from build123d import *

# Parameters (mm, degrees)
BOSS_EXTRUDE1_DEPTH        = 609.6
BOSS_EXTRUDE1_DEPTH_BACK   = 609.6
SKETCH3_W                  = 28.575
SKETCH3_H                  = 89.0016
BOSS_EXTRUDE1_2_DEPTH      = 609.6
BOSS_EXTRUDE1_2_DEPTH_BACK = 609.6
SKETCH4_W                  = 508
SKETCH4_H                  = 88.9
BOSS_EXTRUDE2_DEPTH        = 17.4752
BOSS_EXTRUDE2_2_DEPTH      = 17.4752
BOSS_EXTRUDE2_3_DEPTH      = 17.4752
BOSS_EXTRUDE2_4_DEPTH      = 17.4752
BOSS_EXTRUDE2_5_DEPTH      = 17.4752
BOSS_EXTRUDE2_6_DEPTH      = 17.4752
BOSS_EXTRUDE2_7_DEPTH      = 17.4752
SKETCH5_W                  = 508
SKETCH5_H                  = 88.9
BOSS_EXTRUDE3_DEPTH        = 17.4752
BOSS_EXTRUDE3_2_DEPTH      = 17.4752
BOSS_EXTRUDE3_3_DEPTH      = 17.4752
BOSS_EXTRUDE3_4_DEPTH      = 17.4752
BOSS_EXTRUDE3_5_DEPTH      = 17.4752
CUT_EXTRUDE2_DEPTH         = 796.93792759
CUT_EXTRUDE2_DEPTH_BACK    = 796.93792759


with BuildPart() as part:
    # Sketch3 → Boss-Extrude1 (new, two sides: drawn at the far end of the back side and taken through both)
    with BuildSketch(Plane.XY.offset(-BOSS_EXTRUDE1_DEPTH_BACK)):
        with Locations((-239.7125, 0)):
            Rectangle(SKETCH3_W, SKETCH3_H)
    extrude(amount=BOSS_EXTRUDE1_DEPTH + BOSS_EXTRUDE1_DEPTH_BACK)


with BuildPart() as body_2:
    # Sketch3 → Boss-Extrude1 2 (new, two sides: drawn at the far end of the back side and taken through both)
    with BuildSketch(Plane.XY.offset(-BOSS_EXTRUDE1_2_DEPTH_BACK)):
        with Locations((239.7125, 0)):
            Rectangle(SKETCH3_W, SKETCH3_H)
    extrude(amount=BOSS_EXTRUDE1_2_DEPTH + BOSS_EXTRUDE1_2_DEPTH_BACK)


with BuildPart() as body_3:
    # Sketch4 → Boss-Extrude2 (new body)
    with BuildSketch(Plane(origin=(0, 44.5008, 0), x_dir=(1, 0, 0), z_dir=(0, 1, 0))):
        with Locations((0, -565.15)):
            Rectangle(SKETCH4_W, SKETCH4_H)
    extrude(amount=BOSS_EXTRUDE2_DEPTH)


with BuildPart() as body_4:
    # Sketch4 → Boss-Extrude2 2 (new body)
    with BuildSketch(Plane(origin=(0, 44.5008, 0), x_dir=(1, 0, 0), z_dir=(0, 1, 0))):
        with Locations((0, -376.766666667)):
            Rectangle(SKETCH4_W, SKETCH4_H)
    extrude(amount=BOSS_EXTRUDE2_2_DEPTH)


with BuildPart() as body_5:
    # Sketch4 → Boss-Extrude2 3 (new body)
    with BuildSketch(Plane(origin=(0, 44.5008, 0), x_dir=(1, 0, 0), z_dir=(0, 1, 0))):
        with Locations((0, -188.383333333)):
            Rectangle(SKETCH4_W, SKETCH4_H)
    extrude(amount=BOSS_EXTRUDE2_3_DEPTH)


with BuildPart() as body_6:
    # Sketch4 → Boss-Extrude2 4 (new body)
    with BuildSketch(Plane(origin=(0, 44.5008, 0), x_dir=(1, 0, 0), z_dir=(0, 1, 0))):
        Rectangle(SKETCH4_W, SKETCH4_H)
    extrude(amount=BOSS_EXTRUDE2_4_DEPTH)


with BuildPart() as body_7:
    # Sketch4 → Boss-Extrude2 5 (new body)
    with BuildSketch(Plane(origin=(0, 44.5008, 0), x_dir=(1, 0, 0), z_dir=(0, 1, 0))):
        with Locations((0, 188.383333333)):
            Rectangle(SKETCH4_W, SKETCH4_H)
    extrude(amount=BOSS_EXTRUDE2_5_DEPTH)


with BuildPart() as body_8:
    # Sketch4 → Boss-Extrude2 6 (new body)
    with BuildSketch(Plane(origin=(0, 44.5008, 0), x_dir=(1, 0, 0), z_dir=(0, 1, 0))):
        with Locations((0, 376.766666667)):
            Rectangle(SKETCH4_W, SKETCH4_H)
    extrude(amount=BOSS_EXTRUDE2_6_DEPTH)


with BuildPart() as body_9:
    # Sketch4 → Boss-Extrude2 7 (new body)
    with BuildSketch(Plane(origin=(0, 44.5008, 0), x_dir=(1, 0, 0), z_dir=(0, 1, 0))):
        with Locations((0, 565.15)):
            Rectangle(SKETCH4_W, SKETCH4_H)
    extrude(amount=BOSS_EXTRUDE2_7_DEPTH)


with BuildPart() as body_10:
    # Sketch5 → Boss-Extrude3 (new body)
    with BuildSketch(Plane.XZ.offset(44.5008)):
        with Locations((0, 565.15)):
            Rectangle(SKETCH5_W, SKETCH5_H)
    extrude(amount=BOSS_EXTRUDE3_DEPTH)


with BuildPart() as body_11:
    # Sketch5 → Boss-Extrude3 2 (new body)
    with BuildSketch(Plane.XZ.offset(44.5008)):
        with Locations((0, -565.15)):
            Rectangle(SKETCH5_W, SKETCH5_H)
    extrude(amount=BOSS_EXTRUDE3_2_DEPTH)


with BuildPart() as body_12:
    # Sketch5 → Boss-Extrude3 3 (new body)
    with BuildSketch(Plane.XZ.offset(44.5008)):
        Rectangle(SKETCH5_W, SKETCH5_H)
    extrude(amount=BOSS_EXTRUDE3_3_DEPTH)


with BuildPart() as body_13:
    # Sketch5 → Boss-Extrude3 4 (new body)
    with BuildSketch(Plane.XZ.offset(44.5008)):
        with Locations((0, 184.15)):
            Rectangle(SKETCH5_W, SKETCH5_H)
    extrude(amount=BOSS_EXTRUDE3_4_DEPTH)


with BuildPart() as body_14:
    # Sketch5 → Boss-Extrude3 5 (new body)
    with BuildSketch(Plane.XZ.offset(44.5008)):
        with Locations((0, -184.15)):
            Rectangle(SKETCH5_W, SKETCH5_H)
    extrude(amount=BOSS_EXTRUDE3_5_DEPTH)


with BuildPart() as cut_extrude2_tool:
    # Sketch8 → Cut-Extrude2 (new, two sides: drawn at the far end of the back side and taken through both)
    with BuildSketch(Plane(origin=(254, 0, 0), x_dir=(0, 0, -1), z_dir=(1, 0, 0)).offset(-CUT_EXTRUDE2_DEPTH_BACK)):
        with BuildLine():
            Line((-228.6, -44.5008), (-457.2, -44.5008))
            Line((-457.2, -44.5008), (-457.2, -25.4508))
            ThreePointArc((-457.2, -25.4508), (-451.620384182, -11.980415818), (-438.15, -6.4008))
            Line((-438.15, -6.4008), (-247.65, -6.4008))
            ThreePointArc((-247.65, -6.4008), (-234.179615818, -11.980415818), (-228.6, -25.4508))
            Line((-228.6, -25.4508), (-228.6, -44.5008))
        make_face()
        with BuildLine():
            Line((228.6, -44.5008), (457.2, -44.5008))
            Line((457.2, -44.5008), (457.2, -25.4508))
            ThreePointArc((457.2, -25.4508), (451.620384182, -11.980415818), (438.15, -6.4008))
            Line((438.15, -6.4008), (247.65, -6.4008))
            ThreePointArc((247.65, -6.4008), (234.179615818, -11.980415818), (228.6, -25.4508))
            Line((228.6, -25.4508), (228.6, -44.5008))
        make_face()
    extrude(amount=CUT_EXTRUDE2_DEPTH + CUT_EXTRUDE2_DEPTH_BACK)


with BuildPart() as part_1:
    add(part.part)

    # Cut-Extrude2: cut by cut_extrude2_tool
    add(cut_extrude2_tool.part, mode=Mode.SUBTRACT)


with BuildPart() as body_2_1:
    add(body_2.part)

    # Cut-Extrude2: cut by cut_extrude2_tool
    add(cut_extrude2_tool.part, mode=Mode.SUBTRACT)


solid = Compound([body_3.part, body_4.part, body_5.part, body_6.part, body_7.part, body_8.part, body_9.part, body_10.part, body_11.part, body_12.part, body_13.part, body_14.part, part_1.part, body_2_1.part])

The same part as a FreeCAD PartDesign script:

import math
import FreeCAD as App
import Part
import Sketcher
from FreeCAD import Vector
Q = App.Units.Quantity


def add_polygon(sketch, points):
    """Adds a closed chain of lines whose ends are joined by coincident constraints."""
    first, n = sketch.GeometryCount, len(points)
    for a, b in zip(points, points[1:] + points[:1]):
        sketch.addGeometry(Part.LineSegment(App.Vector(*a, 0), App.Vector(*b, 0)), False)
    for i in range(n):
        sketch.addConstraint(Sketcher.Constraint("Coincident", first + i, 2, first + (i + 1) % n, 1))

doc = App.newDocument("Part")
body = doc.addObject("PartDesign::Body", "Body")

# Sketch on XY plane
sketch1 = body.newObject("Sketcher::SketchObject", "Sketch")
sketch1.AttachmentSupport = (doc.getObject("XY_Plane"), [""])
sketch1.MapMode = "FlatFace"
add_polygon(sketch1, [(-254, 45), (-254, -45), (-225, -45), (-225, 45)])  # lines 0-3
sketch1.addConstraint([
    Sketcher.Constraint("Vertical", 0),
    Sketcher.Constraint("Horizontal", 1),
    Sketcher.Constraint("Vertical", 2),
    Sketcher.Constraint("Horizontal", 3),
    Sketcher.Constraint("DistanceX", 0, 2, -1, 1, Q("10 in")),
    Sketcher.Constraint("DistanceX", 1, 1, 1, 2, Q("1.125 in")),
    Sketcher.Constraint("DistanceY", 0, 2, 0, 1, Q("3.504 in")),
    Sketcher.Constraint("DistanceY", 0, 2, -1, 1, Q("1.752 in")),
])
pad1 = body.newObject("PartDesign::Pad", "Pad")
pad1.Profile = sketch1
pad1.Type = "TwoLengths"
pad1.Length = Q("24 in")
pad1.Length2 = Q("24 in")
body2 = doc.addObject("PartDesign::Body", "Body001")

# Sketch on XY plane
sketch2 = body2.newObject("Sketcher::SketchObject", "Sketch001")
sketch2.AttachmentSupport = (doc.getObject("XY_Plane001"), [""])
sketch2.MapMode = "FlatFace"
add_polygon(sketch2, [(225, 45), (225, -45), (254, -45), (254, 45)])  # lines 0-3
sketch2.addConstraint([
    Sketcher.Constraint("Vertical", 0),
    Sketcher.Constraint("Horizontal", 1),
    Sketcher.Constraint("Vertical", 2),
    Sketcher.Constraint("Horizontal", 3),
    Sketcher.Constraint("DistanceX", -1, 1, 1, 2, Q("10 in")),
    Sketcher.Constraint("DistanceX", 1, 1, 1, 2, Q("1.125 in")),
    Sketcher.Constraint("DistanceY", 0, 2, 0, 1, Q("3.504 in")),
    Sketcher.Constraint("DistanceY", 0, 2, -1, 1, Q("1.752 in")),
])
pad2 = body2.newObject("PartDesign::Pad", "Pad001")
pad2.Profile = sketch2
pad2.Type = "TwoLengths"
pad2.Length = Q("24 in")
pad2.Length2 = Q("24 in")
body3 = doc.addObject("PartDesign::Body", "Body002")

# Sketch on XZ plane
sketch3 = body3.newObject("Sketcher::SketchObject", "Sketch002")
sketch3.AttachmentSupport = (doc.getObject("XZ_Plane002"), [""])
sketch3.MapMode = "FlatFace"
sketch3.AttachmentOffset = App.Placement(Vector(0, 0, -1.752 * 25.4), App.Rotation())
add_polygon(sketch3, [(-254, 521), (-254, 610), (254, 610), (254, 521)])  # lines 0-3
sketch3.addConstraint([
    Sketcher.Constraint("Vertical", 0),
    Sketcher.Constraint("Horizontal", 1),
    Sketcher.Constraint("Vertical", 2),
    Sketcher.Constraint("Horizontal", 3),
    Sketcher.Constraint("DistanceX", 1, 1, 1, 2, Q("20 in")),
    Sketcher.Constraint("DistanceY", 0, 1, 0, 2, Q("3.5 in")),
    Sketcher.Constraint("DistanceX", 0, 2, -1, 1, Q("10 in")),
    Sketcher.Constraint("DistanceY", -1, 1, 0, 2, Q("24 in")),
])
pad3 = body3.newObject("PartDesign::Pad", "Pad002")
pad3.Profile = sketch3
pad3.Length = Q("0.688 in")
pad3.Reversed = True
body4 = doc.addObject("PartDesign::Body", "Body003")

# Sketch on XZ plane
sketch4 = body4.newObject("Sketcher::SketchObject", "Sketch003")
sketch4.AttachmentSupport = (doc.getObject("XZ_Plane003"), [""])
sketch4.MapMode = "FlatFace"
sketch4.AttachmentOffset = App.Placement(Vector(0, 0, -1.752 * 25.4), App.Rotation())
add_polygon(sketch4, [(-254, 332), (-254, 421), (254, 421), (254, 332)])  # lines 0-3
sketch4.addConstraint([
    Sketcher.Constraint("Vertical", 0),
    Sketcher.Constraint("Horizontal", 1),
    Sketcher.Constraint("Vertical", 2),
    Sketcher.Constraint("Horizontal", 3),
    Sketcher.Constraint("DistanceX", 1, 1, 1, 2, Q("20 in")),
    Sketcher.Constraint("DistanceY", 0, 1, 0, 2, Q("3.5 in")),
    Sketcher.Constraint("DistanceX", 0, 2, -1, 1, Q("10 in")),
    Sketcher.Constraint("DistanceY", -1, 1, 0, 2, 421.216667),
])
pad4 = body4.newObject("PartDesign::Pad", "Pad003")
pad4.Profile = sketch4
pad4.Length = Q("0.688 in")
pad4.Reversed = True
body5 = doc.addObject("PartDesign::Body", "Body004")

# Sketch on XZ plane
sketch5 = body5.newObject("Sketcher::SketchObject", "Sketch004")
sketch5.AttachmentSupport = (doc.getObject("XZ_Plane004"), [""])
sketch5.MapMode = "FlatFace"
sketch5.AttachmentOffset = App.Placement(Vector(0, 0, -1.752 * 25.4), App.Rotation())
add_polygon(sketch5, [(-254, 144), (-254, 233), (254, 233), (254, 144)])  # lines 0-3
sketch5.addConstraint([
    Sketcher.Constraint("Vertical", 0),
    Sketcher.Constraint("Horizontal", 1),
    Sketcher.Constraint("Vertical", 2),
    Sketcher.Constraint("Horizontal", 3),
    Sketcher.Constraint("DistanceX", 1, 1, 1, 2, Q("20 in")),
    Sketcher.Constraint("DistanceY", 0, 1, 0, 2, Q("3.5 in")),
    Sketcher.Constraint("DistanceX", 0, 2, -1, 1, Q("10 in")),
    Sketcher.Constraint("DistanceY", -1, 1, 0, 2, 232.833333),
])
pad5 = body5.newObject("PartDesign::Pad", "Pad004")
pad5.Profile = sketch5
pad5.Length = Q("0.688 in")
pad5.Reversed = True
body6 = doc.addObject("PartDesign::Body", "Body005")

# Sketch on XZ plane
sketch6 = body6.newObject("Sketcher::SketchObject", "Sketch005")
sketch6.AttachmentSupport = (doc.getObject("XZ_Plane005"), [""])
sketch6.MapMode = "FlatFace"
sketch6.AttachmentOffset = App.Placement(Vector(0, 0, -1.752 * 25.4), App.Rotation())
add_polygon(sketch6, [(-254, -44), (-254, 44), (254, 44), (254, -44)])  # lines 0-3
sketch6.addConstraint([
    Sketcher.Constraint("Vertical", 0),
    Sketcher.Constraint("Horizontal", 1),
    Sketcher.Constraint("Vertical", 2),
    Sketcher.Constraint("Horizontal", 3),
    Sketcher.Constraint("Symmetric", 0, 2, 2, 2, -1, 1),
    Sketcher.Constraint("DistanceX", 1, 1, 1, 2, Q("20 in")),
    Sketcher.Constraint("DistanceY", 0, 1, 0, 2, Q("3.5 in")),
])
pad6 = body6.newObject("PartDesign::Pad", "Pad005")
pad6.Profile = sketch6
pad6.Length = Q("0.688 in")
pad6.Reversed = True
body7 = doc.addObject("PartDesign::Body", "Body006")

# Sketch on XZ plane
sketch7 = body7.newObject("Sketcher::SketchObject", "Sketch006")
sketch7.AttachmentSupport = (doc.getObject("XZ_Plane006"), [""])
sketch7.MapMode = "FlatFace"
sketch7.AttachmentOffset = App.Placement(Vector(0, 0, -1.752 * 25.4), App.Rotation())
add_polygon(sketch7, [(-254, -233), (-254, -144), (254, -144), (254, -233)])  # lines 0-3
sketch7.addConstraint([
    Sketcher.Constraint("Vertical", 0),
    Sketcher.Constraint("Horizontal", 1),
    Sketcher.Constraint("Vertical", 2),
    Sketcher.Constraint("Horizontal", 3),
    Sketcher.Constraint("DistanceX", 1, 1, 1, 2, Q("20 in")),
    Sketcher.Constraint("DistanceY", 0, 1, 0, 2, Q("3.5 in")),
    Sketcher.Constraint("DistanceX", 0, 2, -1, 1, Q("10 in")),
    Sketcher.Constraint("DistanceY", 0, 2, -1, 1, 143.933333),
])
pad7 = body7.newObject("PartDesign::Pad", "Pad006")
pad7.Profile = sketch7
pad7.Length = Q("0.688 in")
pad7.Reversed = True
body8 = doc.addObject("PartDesign::Body", "Body007")

# Sketch on XZ plane
sketch8 = body8.newObject("Sketcher::SketchObject", "Sketch007")
sketch8.AttachmentSupport = (doc.getObject("XZ_Plane007"), [""])
sketch8.MapMode = "FlatFace"
sketch8.AttachmentOffset = App.Placement(Vector(0, 0, -1.752 * 25.4), App.Rotation())
add_polygon(sketch8, [(-254, -421), (-254, -332), (254, -332), (254, -421)])  # lines 0-3
sketch8.addConstraint([
    Sketcher.Constraint("Vertical", 0),
    Sketcher.Constraint("Horizontal", 1),
    Sketcher.Constraint("Vertical", 2),
    Sketcher.Constraint("Horizontal", 3),
    Sketcher.Constraint("DistanceX", 1, 1, 1, 2, Q("20 in")),
    Sketcher.Constraint("DistanceY", 0, 1, 0, 2, Q("3.5 in")),
    Sketcher.Constraint("DistanceX", 0, 2, -1, 1, Q("10 in")),
    Sketcher.Constraint("DistanceY", 0, 2, -1, 1, 332.316667),
])
pad8 = body8.newObject("PartDesign::Pad", "Pad007")
pad8.Profile = sketch8
pad8.Length = Q("0.688 in")
pad8.Reversed = True
body9 = doc.addObject("PartDesign::Body", "Body008")

# Sketch on XZ plane
sketch9 = body9.newObject("Sketcher::SketchObject", "Sketch008")
sketch9.AttachmentSupport = (doc.getObject("XZ_Plane008"), [""])
sketch9.MapMode = "FlatFace"
sketch9.AttachmentOffset = App.Placement(Vector(0, 0, -1.752 * 25.4), App.Rotation())
add_polygon(sketch9, [(-254, -610), (-254, -521), (254, -521), (254, -610)])  # lines 0-3
sketch9.addConstraint([
    Sketcher.Constraint("Vertical", 0),
    Sketcher.Constraint("Horizontal", 1),
    Sketcher.Constraint("Vertical", 2),
    Sketcher.Constraint("Horizontal", 3),
    Sketcher.Constraint("DistanceX", 1, 1, 1, 2, Q("20 in")),
    Sketcher.Constraint("DistanceY", 0, 1, 0, 2, Q("3.5 in")),
    Sketcher.Constraint("DistanceX", 0, 2, -1, 1, Q("10 in")),
    Sketcher.Constraint("DistanceY", 2, 2, -1, 1, Q("24 in")),
])
pad9 = body9.newObject("PartDesign::Pad", "Pad008")
pad9.Profile = sketch9
pad9.Length = Q("0.688 in")
pad9.Reversed = True
body10 = doc.addObject("PartDesign::Body", "Body009")

# Sketch on XZ plane
sketch10 = body10.newObject("Sketcher::SketchObject", "Sketch009")
sketch10.AttachmentSupport = (doc.getObject("XZ_Plane009"), [""])
sketch10.MapMode = "FlatFace"
sketch10.AttachmentOffset = App.Placement(Vector(0, 0, 1.752 * 25.4), App.Rotation())
add_polygon(sketch10, [(-254, 610), (-254, 521), (254, 521), (254, 610)])  # lines 0-3
sketch10.addConstraint([
    Sketcher.Constraint("Vertical", 0),
    Sketcher.Constraint("Horizontal", 1),
    Sketcher.Constraint("Vertical", 2),
    Sketcher.Constraint("Horizontal", 3),
    Sketcher.Constraint("DistanceX", 1, 1, 1, 2, Q("20 in")),
    Sketcher.Constraint("DistanceY", 0, 2, 0, 1, Q("3.5 in")),
    Sketcher.Constraint("DistanceX", 0, 2, -1, 1, Q("10 in")),
    Sketcher.Constraint("DistanceY", -1, 1, 2, 2, Q("24 in")),
])
pad10 = body10.newObject("PartDesign::Pad", "Pad009")
pad10.Profile = sketch10
pad10.Length = Q("0.688 in")
body11 = doc.addObject("PartDesign::Body", "Body010")

# Sketch on XZ plane
sketch11 = body11.newObject("Sketcher::SketchObject", "Sketch010")
sketch11.AttachmentSupport = (doc.getObject("XZ_Plane010"), [""])
sketch11.MapMode = "FlatFace"
sketch11.AttachmentOffset = App.Placement(Vector(0, 0, 1.752 * 25.4), App.Rotation())
add_polygon(sketch11, [(-254, -521), (-254, -610), (254, -610), (254, -521)])  # lines 0-3
sketch11.addConstraint([
    Sketcher.Constraint("Vertical", 0),
    Sketcher.Constraint("Horizontal", 1),
    Sketcher.Constraint("Vertical", 2),
    Sketcher.Constraint("Horizontal", 3),
    Sketcher.Constraint("DistanceX", 1, 1, 1, 2, Q("20 in")),
    Sketcher.Constraint("DistanceY", 0, 2, 0, 1, Q("3.5 in")),
    Sketcher.Constraint("DistanceX", 0, 2, -1, 1, Q("10 in")),
    Sketcher.Constraint("DistanceY", 0, 2, -1, 1, Q("24 in")),
])
pad11 = body11.newObject("PartDesign::Pad", "Pad010")
pad11.Profile = sketch11
pad11.Length = Q("0.688 in")
body12 = doc.addObject("PartDesign::Body", "Body011")

# Sketch on XZ plane
sketch12 = body12.newObject("Sketcher::SketchObject", "Sketch011")
sketch12.AttachmentSupport = (doc.getObject("XZ_Plane011"), [""])
sketch12.MapMode = "FlatFace"
sketch12.AttachmentOffset = App.Placement(Vector(0, 0, 1.752 * 25.4), App.Rotation())
add_polygon(sketch12, [(-254, 44), (-254, -44), (254, -44), (254, 44)])  # lines 0-3
sketch12.addConstraint([
    Sketcher.Constraint("Vertical", 0),
    Sketcher.Constraint("Horizontal", 1),
    Sketcher.Constraint("Vertical", 2),
    Sketcher.Constraint("Horizontal", 3),
    Sketcher.Constraint("Symmetric", 0, 2, 2, 2, -1, 1),
    Sketcher.Constraint("DistanceX", 1, 1, 1, 2, Q("20 in")),
    Sketcher.Constraint("DistanceY", 0, 2, 0, 1, Q("3.5 in")),
])
pad12 = body12.newObject("PartDesign::Pad", "Pad011")
pad12.Profile = sketch12
pad12.Length = Q("0.688 in")
body13 = doc.addObject("PartDesign::Body", "Body012")

# Sketch on XZ plane
sketch13 = body13.newObject("Sketcher::SketchObject", "Sketch012")
sketch13.AttachmentSupport = (doc.getObject("XZ_Plane012"), [""])
sketch13.MapMode = "FlatFace"
sketch13.AttachmentOffset = App.Placement(Vector(0, 0, 1.752 * 25.4), App.Rotation())
add_polygon(sketch13, [(-254, 229), (-254, 140), (254, 140), (254, 229)])  # lines 0-3
sketch13.addConstraint([
    Sketcher.Constraint("Vertical", 0),
    Sketcher.Constraint("Horizontal", 1),
    Sketcher.Constraint("Vertical", 2),
    Sketcher.Constraint("Horizontal", 3),
    Sketcher.Constraint("DistanceX", 1, 1, 1, 2, Q("20 in")),
    Sketcher.Constraint("DistanceY", 0, 2, 0, 1, Q("3.5 in")),
    Sketcher.Constraint("DistanceX", 0, 2, -1, 1, Q("10 in")),
    Sketcher.Constraint("DistanceY", -1, 1, 2, 2, Q("9 in")),
])
pad13 = body13.newObject("PartDesign::Pad", "Pad012")
pad13.Profile = sketch13
pad13.Length = Q("0.688 in")
body14 = doc.addObject("PartDesign::Body", "Body013")

# Sketch on XZ plane
sketch14 = body14.newObject("Sketcher::SketchObject", "Sketch013")
sketch14.AttachmentSupport = (doc.getObject("XZ_Plane013"), [""])
sketch14.MapMode = "FlatFace"
sketch14.AttachmentOffset = App.Placement(Vector(0, 0, 1.752 * 25.4), App.Rotation())
add_polygon(sketch14, [(-254, -140), (-254, -229), (254, -229), (254, -140)])  # lines 0-3
sketch14.addConstraint([
    Sketcher.Constraint("Vertical", 0),
    Sketcher.Constraint("Horizontal", 1),
    Sketcher.Constraint("Vertical", 2),
    Sketcher.Constraint("Horizontal", 3),
    Sketcher.Constraint("DistanceX", 1, 1, 1, 2, Q("20 in")),
    Sketcher.Constraint("DistanceY", 0, 2, 0, 1, Q("3.5 in")),
    Sketcher.Constraint("DistanceX", 0, 2, -1, 1, Q("10 in")),
    Sketcher.Constraint("DistanceY", 0, 2, -1, 1, Q("9 in")),
])
pad14 = body14.newObject("PartDesign::Pad", "Pad013")
pad14.Profile = sketch14
pad14.Length = Q("0.688 in")
body15 = doc.addObject("PartDesign::Body", "Body014")
body15.AllowCompound = True

# Sketch on YZ plane
sketch15 = body15.newObject("Sketcher::SketchObject", "Sketch014")
sketch15.AttachmentSupport = (doc.getObject("YZ_Plane014"), [""])
sketch15.MapMode = "FlatFace"
sketch15.AttachmentOffset = App.Placement(Vector(0, 0, 10 * 25.4), App.Rotation())
sketch15.addGeometry([
    Part.LineSegment(Vector(-45, 457, 0), Vector(-45, 229, 0)),  # 0
    Part.LineSegment(Vector(-45, 229, 0), Vector(-25, 229, 0)),  # 1
    Part.ArcOfCircle(Part.Circle(Vector(-25, 248, 0), Vector(0, 0, 1), 19), math.radians(-90), math.radians(0)),  # 2
    Part.LineSegment(Vector(-6, 248, 0), Vector(-6, 438, 0)),  # 3
    Part.ArcOfCircle(Part.Circle(Vector(-25, 438, 0), Vector(0, 0, 1), 19), math.radians(0), math.radians(90)),  # 4
    Part.LineSegment(Vector(-25, 457, 0), Vector(-45, 457, 0)),  # 5
    Part.LineSegment(Vector(-45, -229, 0), Vector(-45, -457, 0)),  # 6
    Part.LineSegment(Vector(-45, -457, 0), Vector(-25, -457, 0)),  # 7
    Part.ArcOfCircle(Part.Circle(Vector(-25, -438, 0), Vector(0, 0, 1), 19), math.radians(-90), math.radians(0)),  # 8
    Part.LineSegment(Vector(-6, -438, 0), Vector(-6, -248, 0)),  # 9
    Part.ArcOfCircle(Part.Circle(Vector(-25, -248, 0), Vector(0, 0, 1), 19), math.radians(0), math.radians(90)),  # 10
    Part.LineSegment(Vector(-25, -229, 0), Vector(-45, -229, 0)),  # 11
], False)
sketch15.addConstraint([
    Sketcher.Constraint("Coincident", 0, 2, 1, 1),
    Sketcher.Constraint("Tangent", 1, 2, 2, 1),
    Sketcher.Constraint("Tangent", 2, 2, 3, 1),
    Sketcher.Constraint("Tangent", 3, 2, 4, 1),
    Sketcher.Constraint("Tangent", 4, 2, 5, 1),
    Sketcher.Constraint("Coincident", 5, 2, 0, 1),
    Sketcher.Constraint("Coincident", 6, 2, 7, 1),
    Sketcher.Constraint("Tangent", 7, 2, 8, 1),
    Sketcher.Constraint("Tangent", 8, 2, 9, 1),
    Sketcher.Constraint("Tangent", 9, 2, 10, 1),
    Sketcher.Constraint("Tangent", 10, 2, 11, 1),
    Sketcher.Constraint("Coincident", 11, 2, 6, 1),
    Sketcher.Constraint("Vertical", 0),
    Sketcher.Constraint("Horizontal", 1),
    Sketcher.Constraint("Vertical", 3),
    Sketcher.Constraint("Horizontal", 5),
    Sketcher.Constraint("Vertical", 6),
    Sketcher.Constraint("Horizontal", 7),
    Sketcher.Constraint("Vertical", 9),
    Sketcher.Constraint("Horizontal", 11),
    Sketcher.Constraint("Equal", 2, 4),
    Sketcher.Constraint("Equal", 4, 8),
    Sketcher.Constraint("Equal", 8, 10),
    Sketcher.Constraint("Symmetric", 4, 3, 8, 3, -1),
    Sketcher.Constraint("Symmetric", 0, 2, 11, 2, -1),
    Sketcher.Constraint("DistanceY", 0, 2, 0, 1, Q("9 in")),
    Sketcher.Constraint("Radius", 2, Q("0.75 in")),
    Sketcher.Constraint("DistanceY", -1, 1, 0, 2, Q("9 in")),
    Sketcher.Constraint("DistanceX", 1, 1, 1, 2, Q("0.75 in")),
    Sketcher.Constraint("DistanceX", 2, 3, -1, 1, Q("1.002 in")),
])
pad15 = body15.newObject("PartDesign::Pad", "Pad014")
pad15.Profile = sketch15
pad15.Type = "TwoLengths"
pad15.Length = 796.937928
pad15.Length2 = 796.937928
doc.recompute()

body16 = doc.addObject("PartDesign::Body", "Body015")
body16.BaseFeature = body15
boolean = body.newObject("PartDesign::Boolean", "Boolean")
boolean.Type = "Cut"
boolean.addObjects([body16])
doc.recompute()

boolean2 = body2.newObject("PartDesign::Boolean", "Boolean001")
boolean2.Type = "Cut"
boolean2.addObjects([body15])

doc.recompute()
